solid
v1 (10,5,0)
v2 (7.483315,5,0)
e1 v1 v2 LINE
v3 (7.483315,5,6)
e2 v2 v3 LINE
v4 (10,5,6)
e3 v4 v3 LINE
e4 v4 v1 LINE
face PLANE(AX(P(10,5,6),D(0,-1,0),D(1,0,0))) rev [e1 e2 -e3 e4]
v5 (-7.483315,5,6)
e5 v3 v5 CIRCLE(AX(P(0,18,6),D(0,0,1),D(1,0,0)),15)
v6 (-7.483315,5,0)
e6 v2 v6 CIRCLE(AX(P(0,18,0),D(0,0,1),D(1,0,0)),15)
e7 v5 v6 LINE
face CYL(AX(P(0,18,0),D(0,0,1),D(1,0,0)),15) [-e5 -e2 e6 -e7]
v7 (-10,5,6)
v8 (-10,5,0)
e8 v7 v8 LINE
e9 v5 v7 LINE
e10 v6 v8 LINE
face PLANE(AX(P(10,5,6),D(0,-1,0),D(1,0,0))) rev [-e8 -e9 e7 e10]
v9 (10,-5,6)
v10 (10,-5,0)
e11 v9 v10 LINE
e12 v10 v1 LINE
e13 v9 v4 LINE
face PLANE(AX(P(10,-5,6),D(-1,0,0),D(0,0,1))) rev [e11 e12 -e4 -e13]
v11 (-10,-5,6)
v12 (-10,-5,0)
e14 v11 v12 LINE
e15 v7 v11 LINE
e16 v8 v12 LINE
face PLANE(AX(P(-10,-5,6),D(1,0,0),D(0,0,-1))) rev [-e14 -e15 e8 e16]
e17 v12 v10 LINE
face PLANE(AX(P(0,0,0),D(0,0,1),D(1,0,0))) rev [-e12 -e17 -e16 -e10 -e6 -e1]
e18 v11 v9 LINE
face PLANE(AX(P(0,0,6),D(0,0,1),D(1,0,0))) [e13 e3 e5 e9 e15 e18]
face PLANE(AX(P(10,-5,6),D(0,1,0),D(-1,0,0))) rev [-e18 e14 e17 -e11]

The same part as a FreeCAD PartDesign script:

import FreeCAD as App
import Part
import Sketcher

V = App.Vector
Q = App.Units.Quantity

doc = App.newDocument("Part")
params = doc.addObject("Spreadsheet::Sheet", "Params")
for row, (alias, value) in enumerate([
    ("sketch1_width", "20 mm"),
    ("sketch1_height", "10 mm"),
    ("pad1_length", "6 mm"),
    ("sketch2_diameter", "30 mm"),
    ("pad2_length", "6 mm"),
], start=1):
    params.set(f"A{row}", alias)
    params.set(f"B{row}", "=" + value)
    params.setAlias(f"B{row}", alias)

body = doc.addObject("PartDesign::Body", "Body")

sketch1 = body.newObject("Sketcher::SketchObject", "Sketch")
sketch1.AttachmentSupport = (doc.getObject("XY_Plane"), [""])
sketch1.MapMode = "FlatFace"
sketch1.addGeometry(Part.LineSegment(V(-10, 5, 0), V(-10, -5, 0)), False)
sketch1.addGeometry(Part.LineSegment(V(-10, -5, 0), V(10, -5, 0)), False)
sketch1.addGeometry(Part.LineSegment(V(10, -5, 0), V(10, 5, 0)), False)
sketch1.addGeometry(Part.LineSegment(V(10, 5, 0), V(-10, 5, 0)), False)
sketch1.addConstraint(Sketcher.Constraint("Coincident", 0, 2, 1, 1))
sketch1.addConstraint(Sketcher.Constraint("Coincident", 1, 2, 2, 1))
sketch1.addConstraint(Sketcher.Constraint("Coincident", 2, 2, 3, 1))
sketch1.addConstraint(Sketcher.Constraint("Coincident", 3, 2, 0, 1))
sketch1.addConstraint(Sketcher.Constraint("Vertical", 0))
sketch1.addConstraint(Sketcher.Constraint("Horizontal", 1))
sketch1.addConstraint(Sketcher.Constraint("Vertical", 2))
sketch1.addConstraint(Sketcher.Constraint("Horizontal", 3))
sketch1.addConstraint(Sketcher.Constraint("Symmetric", 0, 2, 2, 2, -1, 1))
sketch1.addConstraint(Sketcher.Constraint("DistanceX", 1, 1, 1, 2, Q("20 mm")))
sketch1.addConstraint(Sketcher.Constraint("DistanceY", 0, 2, 0, 1, Q("10 mm")))
sketch1.setExpression("Constraints[9]", "Params.sketch1_width")
sketch1.setExpression("Constraints[10]", "Params.sketch1_height")
pad1 = body.newObject("PartDesign::Pad", "Pad")
pad1.Profile = sketch1
pad1.setExpression("Length", "Params.pad1_length")

sketch2 = body.newObject("Sketcher::SketchObject", "Sketch001")
sketch2.AttachmentSupport = (doc.getObject("XY_Plane"), [""])
sketch2.MapMode = "FlatFace"
sketch2.AttachmentOffset = App.Placement(V(0, 0, 6), App.Rotation())
sketch2.addGeometry(Part.Circle(V(0, 18, 0), V(0, 0, 1), 15), False)
sketch2.addConstraint(Sketcher.Constraint("PointOnObject", 0, 3, -2))
sketch2.addConstraint(Sketcher.Constraint("Diameter", 0, Q("30 mm")))
sketch2.addConstraint(Sketcher.Constraint("DistanceY", -1, 1, 0, 3, Q("18 mm")))
sketch2.setExpression("Constraints[1]", "Params.sketch2_diameter")
pad2 = body.newObject("PartDesign::Pad", "Pad001")
pad2.Profile = sketch2
pad2.setExpression("Length", "Params.pad2_length")
pad2.Reversed = True

doc.recompute()
